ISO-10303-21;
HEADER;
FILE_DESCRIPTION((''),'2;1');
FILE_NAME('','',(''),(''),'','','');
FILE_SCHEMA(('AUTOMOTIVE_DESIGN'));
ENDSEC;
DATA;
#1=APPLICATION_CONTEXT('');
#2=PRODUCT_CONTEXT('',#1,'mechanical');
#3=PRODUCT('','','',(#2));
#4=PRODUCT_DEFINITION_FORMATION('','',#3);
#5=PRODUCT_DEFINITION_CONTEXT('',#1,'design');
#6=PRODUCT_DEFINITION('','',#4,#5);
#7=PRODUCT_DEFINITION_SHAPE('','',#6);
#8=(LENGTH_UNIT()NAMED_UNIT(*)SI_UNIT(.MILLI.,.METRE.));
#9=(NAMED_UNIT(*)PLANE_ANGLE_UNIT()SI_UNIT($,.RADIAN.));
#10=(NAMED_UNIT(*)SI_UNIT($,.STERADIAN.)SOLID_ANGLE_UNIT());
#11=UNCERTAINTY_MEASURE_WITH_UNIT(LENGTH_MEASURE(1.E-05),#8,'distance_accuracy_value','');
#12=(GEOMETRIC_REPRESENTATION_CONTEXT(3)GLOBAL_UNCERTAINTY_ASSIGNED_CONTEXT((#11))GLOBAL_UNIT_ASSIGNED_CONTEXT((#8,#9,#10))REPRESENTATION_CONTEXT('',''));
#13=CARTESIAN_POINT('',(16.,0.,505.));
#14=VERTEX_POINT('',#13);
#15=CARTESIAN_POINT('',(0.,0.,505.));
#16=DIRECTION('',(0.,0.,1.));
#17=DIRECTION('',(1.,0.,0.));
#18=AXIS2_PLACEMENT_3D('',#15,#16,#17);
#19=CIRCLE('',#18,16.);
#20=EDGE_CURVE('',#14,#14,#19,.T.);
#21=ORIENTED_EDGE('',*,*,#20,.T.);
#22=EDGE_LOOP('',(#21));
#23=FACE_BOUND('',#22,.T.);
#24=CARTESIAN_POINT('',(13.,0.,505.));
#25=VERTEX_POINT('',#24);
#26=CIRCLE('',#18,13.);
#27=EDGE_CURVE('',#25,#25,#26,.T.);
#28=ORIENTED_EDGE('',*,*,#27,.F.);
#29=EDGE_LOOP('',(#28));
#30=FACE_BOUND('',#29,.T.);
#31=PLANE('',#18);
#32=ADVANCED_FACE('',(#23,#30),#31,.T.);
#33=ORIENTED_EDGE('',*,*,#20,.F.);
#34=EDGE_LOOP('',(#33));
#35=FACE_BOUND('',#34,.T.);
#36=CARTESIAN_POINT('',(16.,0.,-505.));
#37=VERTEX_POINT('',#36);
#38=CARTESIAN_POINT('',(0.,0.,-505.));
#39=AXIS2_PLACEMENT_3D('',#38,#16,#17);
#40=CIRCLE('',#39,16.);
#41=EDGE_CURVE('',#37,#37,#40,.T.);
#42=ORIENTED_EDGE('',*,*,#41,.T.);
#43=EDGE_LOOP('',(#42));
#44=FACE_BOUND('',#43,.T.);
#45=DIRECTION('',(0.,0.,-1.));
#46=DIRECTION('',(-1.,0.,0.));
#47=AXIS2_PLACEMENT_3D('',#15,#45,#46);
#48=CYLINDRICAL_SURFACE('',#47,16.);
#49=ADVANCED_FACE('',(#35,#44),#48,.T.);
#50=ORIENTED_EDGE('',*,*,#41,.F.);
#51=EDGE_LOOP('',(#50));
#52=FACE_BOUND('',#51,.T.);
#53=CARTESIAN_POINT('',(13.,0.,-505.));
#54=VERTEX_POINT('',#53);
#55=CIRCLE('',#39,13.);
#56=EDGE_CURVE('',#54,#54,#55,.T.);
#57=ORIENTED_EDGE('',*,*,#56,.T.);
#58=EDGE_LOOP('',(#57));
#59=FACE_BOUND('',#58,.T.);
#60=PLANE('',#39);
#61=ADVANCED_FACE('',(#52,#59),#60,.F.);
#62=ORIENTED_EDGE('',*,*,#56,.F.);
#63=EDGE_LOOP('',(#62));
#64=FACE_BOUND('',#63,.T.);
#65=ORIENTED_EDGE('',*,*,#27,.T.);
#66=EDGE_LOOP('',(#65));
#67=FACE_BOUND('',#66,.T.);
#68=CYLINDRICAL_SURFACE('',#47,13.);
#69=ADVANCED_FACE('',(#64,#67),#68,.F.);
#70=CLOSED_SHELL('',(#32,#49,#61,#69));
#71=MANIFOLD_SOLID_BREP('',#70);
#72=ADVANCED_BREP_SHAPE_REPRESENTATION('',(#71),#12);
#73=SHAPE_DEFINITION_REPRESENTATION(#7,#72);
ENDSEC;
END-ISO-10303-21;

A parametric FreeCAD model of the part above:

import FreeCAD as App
import Part
import Sketcher


def faces_at(feature, points):
    """Names of the faces that lie closest to the given points."""
    faces = feature.Shape.Faces
    near = lambda p: min(range(len(faces)), key=lambda i: faces[i].distToShape(Part.Vertex(*p))[0])
    return sorted({f"Face{near(p) + 1}" for p in points})

doc = App.newDocument("Part")
params = doc.addObject("Spreadsheet::Sheet", "Params")
for row, (alias, value) in enumerate([
    ("sketch1_diameter", "32 mm"),
    ("pad1_length", "1010 mm"),
    ("thickness_wall", "3 mm"),
], start=1):
    params.set(f"A{row}", alias)
    params.set(f"B{row}", "=" + value)
    params.setAlias(f"B{row}", alias)

body = doc.addObject("PartDesign::Body", "Body")

# Sketch on XY plane
sketch1 = body.newObject("Sketcher::SketchObject", "Sketch")
sketch1.AttachmentSupport = (doc.getObject("XY_Plane"), [""])
sketch1.MapMode = "FlatFace"
sketch1.addGeometry(Part.Circle(App.Vector(0, 0, 0), App.Vector(0, 0, 1), 16), False)
sketch1.addConstraint([
    Sketcher.Constraint("Coincident", 0, 3, -1, 1),
    Sketcher.Constraint("Diameter", 0, 32.0),
])
sketch1.setExpression("Constraints[1]", "Params.sketch1_diameter")
pad1 = body.newObject("PartDesign::Pad", "Pad")
pad1.Profile = sketch1
pad1.setExpression("Length", "Params.pad1_length")
pad1.Midplane = True
doc.recompute()

thickness = body.newObject("PartDesign::Thickness", "Thickness")
thickness.Base = (pad1, faces_at(pad1, [(0, 0, 505), (0, 0, -505)]))
thickness.setExpression("Value", "Params.thickness_wall")
thickness.Reversed = True
thickness.Join = "Intersection"

doc.recompute()
